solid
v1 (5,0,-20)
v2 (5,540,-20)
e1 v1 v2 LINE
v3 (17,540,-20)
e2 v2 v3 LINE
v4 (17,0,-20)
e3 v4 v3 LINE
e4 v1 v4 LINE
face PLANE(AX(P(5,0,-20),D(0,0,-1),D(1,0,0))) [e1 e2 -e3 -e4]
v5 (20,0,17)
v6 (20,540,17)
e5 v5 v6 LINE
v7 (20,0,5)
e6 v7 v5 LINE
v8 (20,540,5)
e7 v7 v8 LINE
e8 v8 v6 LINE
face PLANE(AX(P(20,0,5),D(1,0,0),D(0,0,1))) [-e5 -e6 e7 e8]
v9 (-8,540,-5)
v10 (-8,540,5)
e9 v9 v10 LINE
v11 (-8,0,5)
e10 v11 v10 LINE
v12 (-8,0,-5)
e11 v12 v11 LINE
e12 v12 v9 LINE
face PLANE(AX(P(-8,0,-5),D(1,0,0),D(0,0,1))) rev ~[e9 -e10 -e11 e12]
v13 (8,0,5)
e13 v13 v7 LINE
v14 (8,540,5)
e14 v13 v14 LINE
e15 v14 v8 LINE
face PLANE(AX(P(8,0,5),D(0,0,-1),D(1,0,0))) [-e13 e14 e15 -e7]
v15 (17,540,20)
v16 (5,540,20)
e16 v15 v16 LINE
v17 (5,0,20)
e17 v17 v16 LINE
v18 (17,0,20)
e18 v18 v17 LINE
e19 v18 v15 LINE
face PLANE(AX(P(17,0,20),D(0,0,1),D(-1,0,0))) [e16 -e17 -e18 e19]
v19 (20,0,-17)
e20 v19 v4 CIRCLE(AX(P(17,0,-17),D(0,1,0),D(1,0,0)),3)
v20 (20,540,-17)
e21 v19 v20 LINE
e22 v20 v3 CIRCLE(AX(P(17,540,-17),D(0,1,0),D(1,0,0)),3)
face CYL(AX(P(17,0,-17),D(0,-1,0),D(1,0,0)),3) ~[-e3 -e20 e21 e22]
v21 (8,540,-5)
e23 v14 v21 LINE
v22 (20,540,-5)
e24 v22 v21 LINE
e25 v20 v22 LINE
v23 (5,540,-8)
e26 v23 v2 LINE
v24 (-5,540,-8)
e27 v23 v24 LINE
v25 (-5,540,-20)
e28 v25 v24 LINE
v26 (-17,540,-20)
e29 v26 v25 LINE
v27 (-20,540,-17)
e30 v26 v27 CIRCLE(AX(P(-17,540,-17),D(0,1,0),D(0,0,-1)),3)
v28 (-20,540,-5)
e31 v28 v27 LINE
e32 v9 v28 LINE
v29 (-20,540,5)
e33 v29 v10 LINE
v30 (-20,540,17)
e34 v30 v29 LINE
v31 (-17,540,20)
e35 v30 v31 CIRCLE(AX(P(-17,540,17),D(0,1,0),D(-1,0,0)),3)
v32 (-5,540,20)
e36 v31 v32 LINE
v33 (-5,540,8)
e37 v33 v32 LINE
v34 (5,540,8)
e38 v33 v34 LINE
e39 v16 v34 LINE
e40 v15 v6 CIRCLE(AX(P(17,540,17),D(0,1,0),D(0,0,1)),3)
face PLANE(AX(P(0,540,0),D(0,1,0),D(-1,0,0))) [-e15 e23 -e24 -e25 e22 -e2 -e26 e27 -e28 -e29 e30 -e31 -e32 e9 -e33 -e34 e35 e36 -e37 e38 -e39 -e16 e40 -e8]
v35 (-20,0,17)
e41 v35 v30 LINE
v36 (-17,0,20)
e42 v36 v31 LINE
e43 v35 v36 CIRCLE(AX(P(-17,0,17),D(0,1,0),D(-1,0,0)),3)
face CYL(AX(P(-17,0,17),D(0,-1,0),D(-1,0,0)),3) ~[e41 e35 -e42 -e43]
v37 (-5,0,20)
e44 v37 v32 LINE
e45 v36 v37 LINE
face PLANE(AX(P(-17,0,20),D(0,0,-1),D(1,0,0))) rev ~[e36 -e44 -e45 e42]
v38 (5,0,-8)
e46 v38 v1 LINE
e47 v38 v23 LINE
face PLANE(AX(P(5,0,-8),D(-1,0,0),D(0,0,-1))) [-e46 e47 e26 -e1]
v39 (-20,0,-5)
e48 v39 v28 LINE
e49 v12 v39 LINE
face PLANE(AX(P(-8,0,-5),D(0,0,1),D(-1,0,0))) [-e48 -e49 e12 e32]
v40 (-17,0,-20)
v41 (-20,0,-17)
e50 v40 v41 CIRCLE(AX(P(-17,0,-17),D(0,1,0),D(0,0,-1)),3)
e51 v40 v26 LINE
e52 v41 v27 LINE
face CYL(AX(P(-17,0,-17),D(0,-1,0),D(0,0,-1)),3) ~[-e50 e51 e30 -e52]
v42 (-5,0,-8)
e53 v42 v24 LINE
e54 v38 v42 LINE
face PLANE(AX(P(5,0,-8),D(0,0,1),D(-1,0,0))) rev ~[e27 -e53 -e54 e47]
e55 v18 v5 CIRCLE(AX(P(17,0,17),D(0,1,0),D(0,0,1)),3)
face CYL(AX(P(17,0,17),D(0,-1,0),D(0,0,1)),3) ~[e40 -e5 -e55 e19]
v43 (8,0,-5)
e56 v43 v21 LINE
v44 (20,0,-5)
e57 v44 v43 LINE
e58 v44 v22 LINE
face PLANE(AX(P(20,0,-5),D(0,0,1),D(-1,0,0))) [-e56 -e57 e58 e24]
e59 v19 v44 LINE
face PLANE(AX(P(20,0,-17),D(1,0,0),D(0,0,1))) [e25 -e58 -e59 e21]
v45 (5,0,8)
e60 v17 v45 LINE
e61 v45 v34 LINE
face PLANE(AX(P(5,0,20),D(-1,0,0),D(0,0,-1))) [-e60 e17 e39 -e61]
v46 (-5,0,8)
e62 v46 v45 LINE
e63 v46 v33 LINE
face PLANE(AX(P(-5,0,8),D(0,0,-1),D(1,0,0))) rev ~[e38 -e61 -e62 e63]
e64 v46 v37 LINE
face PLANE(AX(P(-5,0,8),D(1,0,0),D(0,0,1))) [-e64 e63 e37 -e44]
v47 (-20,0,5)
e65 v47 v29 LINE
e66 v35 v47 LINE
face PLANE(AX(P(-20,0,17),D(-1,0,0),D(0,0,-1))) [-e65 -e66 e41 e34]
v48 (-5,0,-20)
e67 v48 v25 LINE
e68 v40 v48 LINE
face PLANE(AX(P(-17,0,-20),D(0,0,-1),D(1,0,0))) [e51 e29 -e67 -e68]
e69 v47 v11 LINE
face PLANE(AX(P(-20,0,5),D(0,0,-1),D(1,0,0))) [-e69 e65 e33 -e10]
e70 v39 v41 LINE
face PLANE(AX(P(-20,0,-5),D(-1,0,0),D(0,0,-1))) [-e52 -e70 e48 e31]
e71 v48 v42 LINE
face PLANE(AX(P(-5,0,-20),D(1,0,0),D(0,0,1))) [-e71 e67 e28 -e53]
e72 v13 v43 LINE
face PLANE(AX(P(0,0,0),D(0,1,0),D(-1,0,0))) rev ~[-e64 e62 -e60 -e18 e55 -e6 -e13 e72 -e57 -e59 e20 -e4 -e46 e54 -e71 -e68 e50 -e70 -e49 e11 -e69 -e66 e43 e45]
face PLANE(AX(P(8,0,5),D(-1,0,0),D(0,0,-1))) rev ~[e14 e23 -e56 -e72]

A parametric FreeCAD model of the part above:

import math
import FreeCAD as App
import Part
import Sketcher

doc = App.newDocument("Part")
body = doc.addObject("PartDesign::Body", "Body")

# Sketch on XZ plane
sketch1 = body.newObject("Sketcher::SketchObject", "Sketch")
sketch1.AttachmentSupport = (doc.getObject("XZ_Plane"), [""])
sketch1.MapMode = "FlatFace"
sketch1.addGeometry([
    Part.LineSegment(App.Vector(5, 8, 0), App.Vector(5, 20, 0)),  # 0
    Part.LineSegment(App.Vector(5, 20, 0), App.Vector(17, 20, 0)),  # 1
    Part.ArcOfCircle(Part.Circle(App.Vector(17, 17, 0), App.Vector(0, 0, 1), 3), math.radians(0), math.radians(90)),  # 2
    Part.LineSegment(App.Vector(20, 17, 0), App.Vector(20, 5, 0)),  # 3
    Part.LineSegment(App.Vector(20, 5, 0), App.Vector(8, 5, 0)),  # 4
    Part.LineSegment(App.Vector(8, 5, 0), App.Vector(8, -5, 0)),  # 5
    Part.LineSegment(App.Vector(8, -5, 0), App.Vector(20, -5, 0)),  # 6
    Part.LineSegment(App.Vector(20, -5, 0), App.Vector(20, -17, 0)),  # 7
    Part.ArcOfCircle(Part.Circle(App.Vector(17, -17, 0), App.Vector(0, 0, 1), 3), math.radians(-90), math.radians(0)),  # 8
    Part.LineSegment(App.Vector(17, -20, 0), App.Vector(5, -20, 0)),  # 9
    Part.LineSegment(App.Vector(5, -20, 0), App.Vector(5, -8, 0)),  # 10
    Part.LineSegment(App.Vector(5, -8, 0), App.Vector(-5, -8, 0)),  # 11
    Part.LineSegment(App.Vector(-5, -8, 0), App.Vector(-5, -20, 0)),  # 12
    Part.LineSegment(App.Vector(-5, -20, 0), App.Vector(-17, -20, 0)),  # 13
    Part.ArcOfCircle(Part.Circle(App.Vector(-17, -17, 0), App.Vector(0, 0, 1), 3), math.radians(180), math.radians(270)),  # 14
    Part.LineSegment(App.Vector(-20, -17, 0), App.Vector(-20, -5, 0)),  # 15
    Part.LineSegment(App.Vector(-20, -5, 0), App.Vector(-8, -5, 0)),  # 16
    Part.LineSegment(App.Vector(-8, -5, 0), App.Vector(-8, 5, 0)),  # 17
    Part.LineSegment(App.Vector(-8, 5, 0), App.Vector(-20, 5, 0)),  # 18
    Part.LineSegment(App.Vector(-20, 5, 0), App.Vector(-20, 17, 0)),  # 19
    Part.ArcOfCircle(Part.Circle(App.Vector(-17, 17, 0), App.Vector(0, 0, 1), 3), math.radians(90), math.radians(180)),  # 20
    Part.LineSegment(App.Vector(-17, 20, 0), App.Vector(-5, 20, 0)),  # 21
    Part.LineSegment(App.Vector(-5, 20, 0), App.Vector(-5, 8, 0)),  # 22
    Part.LineSegment(App.Vector(-5, 8, 0), App.Vector(5, 8, 0)),  # 23
], False)
sketch1.addConstraint([
    Sketcher.Constraint("Coincident", 0, 2, 1, 1),
    Sketcher.Constraint("Tangent", 1, 2, 2, 2),
    Sketcher.Constraint("Tangent", 2, 1, 3, 1),
    Sketcher.Constraint("Coincident", 3, 2, 4, 1),
    Sketcher.Constraint("Coincident", 4, 2, 5, 1),
    Sketcher.Constraint("Coincident", 5, 2, 6, 1),
    Sketcher.Constraint("Coincident", 6, 2, 7, 1),
    Sketcher.Constraint("Tangent", 7, 2, 8, 2),
    Sketcher.Constraint("Tangent", 8, 1, 9, 1),
    Sketcher.Constraint("Coincident", 9, 2, 10, 1),
    Sketcher.Constraint("Coincident", 10, 2, 11, 1),
    Sketcher.Constraint("Coincident", 11, 2, 12, 1),
    Sketcher.Constraint("Coincident", 12, 2, 13, 1),
    Sketcher.Constraint("Tangent", 13, 2, 14, 2),
    Sketcher.Constraint("Tangent", 14, 1, 15, 1),
    Sketcher.Constraint("Coincident", 15, 2, 16, 1),
    Sketcher.Constraint("Coincident", 16, 2, 17, 1),
    Sketcher.Constraint("Coincident", 17, 2, 18, 1),
    Sketcher.Constraint("Coincident", 18, 2, 19, 1),
    Sketcher.Constraint("Tangent", 19, 2, 20, 2),
    Sketcher.Constraint("Tangent", 20, 1, 21, 1),
    Sketcher.Constraint("Coincident", 21, 2, 22, 1),
    Sketcher.Constraint("Coincident", 22, 2, 23, 1),
    Sketcher.Constraint("Coincident", 23, 2, 0, 1),
    Sketcher.Constraint("Vertical", 0),
    Sketcher.Constraint("Horizontal", 1),
    Sketcher.Constraint("Vertical", 3),
    Sketcher.Constraint("Horizontal", 4),
    Sketcher.Constraint("Vertical", 5),
    Sketcher.Constraint("Horizontal", 6),
    Sketcher.Constraint("Vertical", 7),
    Sketcher.Constraint("Horizontal", 9),
    Sketcher.Constraint("Vertical", 10),
    Sketcher.Constraint("Horizontal", 11),
    Sketcher.Constraint("Vertical", 12),
    Sketcher.Constraint("Horizontal", 13),
    Sketcher.Constraint("Vertical", 15),
    Sketcher.Constraint("Horizontal", 16),
    Sketcher.Constraint("Vertical", 17),
    Sketcher.Constraint("Horizontal", 18),
    Sketcher.Constraint("Vertical", 19),
    Sketcher.Constraint("Horizontal", 21),
    Sketcher.Constraint("Vertical", 22),
    Sketcher.Constraint("Horizontal", 23),
    Sketcher.Constraint("Equal", 2, 8),
    Sketcher.Constraint("Equal", 8, 14),
    Sketcher.Constraint("Equal", 14, 20),
    Sketcher.Constraint("Symmetric", 2, 3, 14, 3, -1, 1),
    Sketcher.Constraint("Symmetric", 8, 3, 20, 3, -1, 1),
    Sketcher.Constraint("Symmetric", 4, 2, 16, 2, -1, 1),
    Sketcher.Constraint("Symmetric", 10, 2, 22, 2, -1, 1),
    Sketcher.Constraint("Symmetric", 8, 3, 14, 3, -2),
    Sketcher.Constraint("Horizontal", 6, 2, 15, 2),
    Sketcher.Constraint("Horizontal", 4, 2, 17, 2),
    Sketcher.Constraint("Vertical", 0, 2, 9, 2),
    Sketcher.Constraint("Vertical", 12, 2, 21, 2),
    Sketcher.Constraint("Equal", 1, 4),
    Sketcher.Constraint("Equal", 21, 0),
    Sketcher.Constraint("Equal", 0, 3),
    Sketcher.Constraint("Equal", 23, 5),
    Sketcher.Constraint("Radius", 2, 3.0),
    Sketcher.Constraint("DistanceX", 1, 1, 1, 2, 12.0),
    Sketcher.Constraint("DistanceX", 11, 2, 11, 1, 10.0),
])
pad1 = body.newObject("PartDesign::Pad", "Pad")
pad1.Profile = sketch1
pad1.Length = 540
pad1.Reversed = True

doc.recompute()
